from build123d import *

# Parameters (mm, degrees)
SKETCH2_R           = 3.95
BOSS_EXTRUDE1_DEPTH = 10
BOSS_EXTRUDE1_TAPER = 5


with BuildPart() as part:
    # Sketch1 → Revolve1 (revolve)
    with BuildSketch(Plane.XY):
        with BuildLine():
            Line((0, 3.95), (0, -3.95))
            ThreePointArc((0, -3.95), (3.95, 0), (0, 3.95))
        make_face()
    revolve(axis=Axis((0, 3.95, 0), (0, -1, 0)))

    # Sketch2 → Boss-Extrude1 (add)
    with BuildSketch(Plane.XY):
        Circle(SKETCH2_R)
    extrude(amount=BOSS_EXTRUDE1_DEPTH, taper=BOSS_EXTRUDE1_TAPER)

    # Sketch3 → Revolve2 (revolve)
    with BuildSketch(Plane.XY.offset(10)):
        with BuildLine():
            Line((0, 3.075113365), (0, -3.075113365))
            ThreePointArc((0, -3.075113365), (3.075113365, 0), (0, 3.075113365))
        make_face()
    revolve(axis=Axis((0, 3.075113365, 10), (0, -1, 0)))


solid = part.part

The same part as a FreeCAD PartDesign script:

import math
import FreeCAD as App
import Part
import Sketcher
from FreeCAD import Vector
Q = App.Units.Quantity

doc = App.newDocument("Part")
params = doc.addObject("Spreadsheet::Sheet", "Params")
for row, (alias, value) in enumerate([
    ("sketch1_radius", "3.95 mm"),
    ("revolution_angle", "360 deg"),
    ("sketch2_diameter", "7.9 mm"),
    ("pad1_length", "10 mm"),
    ("pad1_taper", "-5 deg"),
    ("revolution2_angle", "360 deg"),
], start=1):
    params.set(f"A{row}", alias)
    params.set(f"B{row}", "=" + value)
    params.setAlias(f"B{row}", alias)

body = doc.addObject("PartDesign::Body", "Body")

sketch1 = body.newObject("Sketcher::SketchObject", "Sketch")
sketch1.AttachmentSupport = (doc.getObject("XY_Plane"), [""])
sketch1.MapMode = "FlatFace"
sketch1.addGeometry([
    Part.LineSegment(Vector(0, 3.95, 0), Vector(0, -3.95, 0)),
    Part.ArcOfCircle(Part.Circle(Vector(0, 0, 0), Vector(0, 0, 1), 3.95), math.radians(-90), math.radians(90)),
], False)
sketch1.addConstraint([
    Sketcher.Constraint("Coincident", 0, 1, 1, 2),
    Sketcher.Constraint("Coincident", 1, 1, 0, 2),
    Sketcher.Constraint("Vertical", 0),
    Sketcher.Constraint("Coincident", 1, 3, -1, 1),
    Sketcher.Constraint("PointOnObject", 0, 1, -2),
    Sketcher.Constraint("Radius", 1, Q("3.95 mm")),
])
sketch1.setExpression("Constraints[5]", "Params.sketch1_radius")
revolution = body.newObject("PartDesign::Revolution", "Revolution")
revolution.Profile = sketch1
revolution.ReferenceAxis = (sketch1, ["V_Axis"])
revolution.setExpression("Angle", "Params.revolution_angle")

sketch2 = body.newObject("Sketcher::SketchObject", "Sketch001")
sketch2.AttachmentSupport = (doc.getObject("XY_Plane"), [""])
sketch2.MapMode = "FlatFace"
sketch2.addGeometry(Part.Circle(Vector(0, 0, 0), Vector(0, 0, 1), 3.95), False)
sketch2.addConstraint([
    Sketcher.Constraint("Coincident", 0, 3, -1, 1),
    Sketcher.Constraint("Diameter", 0, Q("7.9 mm")),
])
sketch2.setExpression("Constraints[1]", "Params.sketch2_diameter")
pad1 = body.newObject("PartDesign::Pad", "Pad")
pad1.Profile = sketch2
pad1.setExpression("Length", "Params.pad1_length")
pad1.setExpression("TaperAngle", "Params.pad1_taper")

sketch3 = body.newObject("Sketcher::SketchObject", "Sketch002")
sketch3.AttachmentSupport = (doc.getObject("XY_Plane"), [""])
sketch3.MapMode = "FlatFace"
sketch3.AttachmentOffset = App.Placement(Vector(0, 0, 10), App.Rotation())
sketch3.addGeometry([
    Part.LineSegment(Vector(0, 3.075113, 0), Vector(0, -3.075113, 0)),
    Part.ArcOfCircle(Part.Circle(Vector(0, 0, 0), Vector(0, 0, 1), 3.075113), math.radians(-90), math.radians(90)),
], False)
sketch3.addConstraint([
    Sketcher.Constraint("Coincident", 0, 1, 1, 2),
    Sketcher.Constraint("Coincident", 1, 1, 0, 2),
    Sketcher.Constraint("Vertical", 0),
    Sketcher.Constraint("Coincident", 1, 3, -1, 1),
    Sketcher.Constraint("PointOnObject", 0, 1, -2),
    Sketcher.Constraint("Radius", 1, Q("3.075113 mm")),
])
revolution2 = body.newObject("PartDesign::Revolution", "Revolution001")
revolution2.Profile = sketch3
revolution2.ReferenceAxis = (sketch3, ["V_Axis"])
revolution2.setExpression("Angle", "Params.revolution2_angle")

doc.recompute()
